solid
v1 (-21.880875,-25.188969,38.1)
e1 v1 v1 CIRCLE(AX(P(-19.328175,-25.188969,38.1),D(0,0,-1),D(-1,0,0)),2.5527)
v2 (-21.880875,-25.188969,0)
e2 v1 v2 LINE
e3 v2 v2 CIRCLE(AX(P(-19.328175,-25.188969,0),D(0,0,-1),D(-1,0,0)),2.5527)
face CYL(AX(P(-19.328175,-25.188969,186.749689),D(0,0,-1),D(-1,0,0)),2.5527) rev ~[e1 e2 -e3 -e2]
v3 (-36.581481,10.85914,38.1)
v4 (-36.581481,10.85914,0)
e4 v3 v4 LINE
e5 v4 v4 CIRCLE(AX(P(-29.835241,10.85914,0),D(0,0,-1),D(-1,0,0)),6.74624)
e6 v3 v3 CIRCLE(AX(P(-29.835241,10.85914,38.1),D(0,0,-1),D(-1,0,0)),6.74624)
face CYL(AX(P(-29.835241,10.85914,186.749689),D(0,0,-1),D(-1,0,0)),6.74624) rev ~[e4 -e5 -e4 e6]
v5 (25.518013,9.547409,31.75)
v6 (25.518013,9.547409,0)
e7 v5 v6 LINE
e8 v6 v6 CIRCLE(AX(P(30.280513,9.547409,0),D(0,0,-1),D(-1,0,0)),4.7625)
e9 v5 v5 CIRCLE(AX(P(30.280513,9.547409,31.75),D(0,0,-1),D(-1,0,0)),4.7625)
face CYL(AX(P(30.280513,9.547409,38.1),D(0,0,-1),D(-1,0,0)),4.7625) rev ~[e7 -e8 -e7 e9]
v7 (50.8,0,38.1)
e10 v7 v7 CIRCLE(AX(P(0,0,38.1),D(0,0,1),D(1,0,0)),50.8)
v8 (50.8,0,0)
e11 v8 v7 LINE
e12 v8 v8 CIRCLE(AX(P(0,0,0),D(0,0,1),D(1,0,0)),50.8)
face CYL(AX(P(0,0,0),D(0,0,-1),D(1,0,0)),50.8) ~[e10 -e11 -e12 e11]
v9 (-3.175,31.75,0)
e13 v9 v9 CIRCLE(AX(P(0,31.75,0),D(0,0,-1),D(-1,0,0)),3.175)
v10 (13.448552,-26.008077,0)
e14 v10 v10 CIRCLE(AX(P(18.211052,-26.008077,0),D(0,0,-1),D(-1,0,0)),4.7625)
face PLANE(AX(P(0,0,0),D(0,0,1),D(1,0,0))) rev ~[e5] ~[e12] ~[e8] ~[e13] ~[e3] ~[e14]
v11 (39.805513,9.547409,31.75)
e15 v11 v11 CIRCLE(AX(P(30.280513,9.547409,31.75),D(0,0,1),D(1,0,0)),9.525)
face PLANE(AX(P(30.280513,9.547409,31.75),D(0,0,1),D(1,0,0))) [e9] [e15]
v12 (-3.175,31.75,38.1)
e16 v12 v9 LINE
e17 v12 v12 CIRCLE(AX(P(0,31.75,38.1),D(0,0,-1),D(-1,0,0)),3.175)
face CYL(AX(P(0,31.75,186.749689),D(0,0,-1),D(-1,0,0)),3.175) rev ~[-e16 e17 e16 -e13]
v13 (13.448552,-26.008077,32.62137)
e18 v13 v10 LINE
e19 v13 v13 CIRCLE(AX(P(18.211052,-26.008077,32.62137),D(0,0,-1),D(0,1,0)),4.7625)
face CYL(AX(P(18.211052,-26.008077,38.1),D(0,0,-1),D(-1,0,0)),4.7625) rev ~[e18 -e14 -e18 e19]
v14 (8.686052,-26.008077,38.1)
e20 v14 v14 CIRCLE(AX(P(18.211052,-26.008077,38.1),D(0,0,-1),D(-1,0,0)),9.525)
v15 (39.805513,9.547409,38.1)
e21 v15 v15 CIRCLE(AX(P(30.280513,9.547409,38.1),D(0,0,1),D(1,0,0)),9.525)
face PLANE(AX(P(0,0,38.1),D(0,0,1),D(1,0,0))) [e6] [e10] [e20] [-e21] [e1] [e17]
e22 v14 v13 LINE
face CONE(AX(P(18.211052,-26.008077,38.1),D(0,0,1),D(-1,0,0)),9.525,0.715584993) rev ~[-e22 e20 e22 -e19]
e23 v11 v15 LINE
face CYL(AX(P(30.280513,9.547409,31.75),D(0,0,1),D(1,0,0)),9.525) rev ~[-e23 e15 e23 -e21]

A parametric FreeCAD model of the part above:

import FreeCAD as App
import Part
import Sketcher
from FreeCAD import Vector
Q = App.Units.Quantity

doc = App.newDocument("Part")
body = doc.addObject("PartDesign::Body", "Body")

# Sketch on XY plane
sketch1 = doc.addObject("Sketcher::SketchObject", "Sketch")
body.addObject(sketch1)
sketch1.AttachmentSupport = (doc.XY_Plane, [""])
sketch1.MapMode = "FlatFace"
sketch1.addGeometry(Part.Circle(Vector(0, 0, 0), Vector(0, 0, 1), 50.8), False)
sketch1.addConstraint([
    Sketcher.Constraint("Coincident", 0, 3, -1, 1),
    Sketcher.Constraint("Diameter", 0, Q("4 in")),
])
pad1 = doc.addObject("PartDesign::Pad", "Pad")
body.addObject(pad1)
pad1.Profile = sketch1
pad1.Length = Q("1.5 in")

# Sketch on XY plane
sketch2 = doc.addObject("Sketcher::SketchObject", "Sketch001")
body.addObject(sketch2)
sketch2.AttachmentSupport = (doc.XY_Plane, [""])
sketch2.MapMode = "FlatFace"
sketch2.AttachmentOffset = App.Placement(Vector(0, 0, 1.5 * 25.4), App.Rotation())
sketch2.addGeometry(Part.Circle(Vector(0, 31.75, 0), Vector(0, 0, 1), 3.175), False)
sketch2.addConstraint([
    Sketcher.Constraint("PointOnObject", 0, 3, -2),
    Sketcher.Constraint("Diameter", 0, Q("0.25 in")),
    Sketcher.Constraint("DistanceY", -1, 1, 0, 3, Q("1.25 in")),
])
doc.recompute()
hole = doc.addObject("PartDesign::Hole", "Hole")
body.addObject(hole)
hole.Profile = sketch2
hole.ThreadType = "None"
hole.Diameter = Q("0.25 in")
hole.DepthType = "ThroughAll"

# Sketch on XY plane
sketch3 = doc.addObject("Sketcher::SketchObject", "Sketch002")
body.addObject(sketch3)
sketch3.AttachmentSupport = (doc.XY_Plane, [""])
sketch3.MapMode = "FlatFace"
sketch3.AttachmentOffset = App.Placement(Vector(0, 0, 1.5 * 25.4), App.Rotation())
sketch3.addGeometry(Part.Circle(Vector(30.280513, 9.547409, 0), Vector(0, 0, 1), 4.7625), False)
sketch3.addConstraint([
    Sketcher.Constraint("Diameter", 0, Q("0.375 in")),
    Sketcher.Constraint("DistanceY", -1, 1, 0, 3, 9.547409),
    Sketcher.Constraint("DistanceX", -1, 1, 0, 3, 30.280513),
])
doc.recompute()
hole2 = doc.addObject("PartDesign::Hole", "Hole001")
body.addObject(hole2)
hole2.Profile = sketch3
hole2.ThreadType = "None"
hole2.Diameter = Q("0.375 in")
hole2.DepthType = "ThroughAll"
hole2.HoleCutType = "Counterbore"
hole2.HoleCutDiameter = Q("0.75 in")
hole2.HoleCutDepth = Q("0.25 in")

# Sketch on XY plane
sketch4 = doc.addObject("Sketcher::SketchObject", "Sketch003")
body.addObject(sketch4)
sketch4.AttachmentSupport = (doc.XY_Plane, [""])
sketch4.MapMode = "FlatFace"
sketch4.AttachmentOffset = App.Placement(Vector(0, 0, 1.5 * 25.4), App.Rotation())
sketch4.addGeometry(Part.Circle(Vector(18.211052, -26.008077, 0), Vector(0, 0, 1), 4.7625), False)
sketch4.addConstraint([
    Sketcher.Constraint("Diameter", 0, Q("0.375 in")),
    Sketcher.Constraint("DistanceX", -1, 1, 0, 3, 18.211052),
    Sketcher.Constraint("DistanceY", 0, 3, -1, 1, 26.008077),
])
doc.recompute()
hole3 = doc.addObject("PartDesign::Hole", "Hole002")
body.addObject(hole3)
hole3.Profile = sketch4
hole3.ThreadType = "None"
hole3.Diameter = Q("0.375 in")
hole3.DepthType = "ThroughAll"
hole3.HoleCutType = "Countersink"
hole3.HoleCutDiameter = Q("0.75 in")
hole3.HoleCutCountersinkAngle = 82

# Sketch on XY plane
sketch5 = doc.addObject("Sketcher::SketchObject", "Sketch004")
body.addObject(sketch5)
sketch5.AttachmentSupport = (doc.XY_Plane, [""])
sketch5.MapMode = "FlatFace"
sketch5.AttachmentOffset = App.Placement(Vector(0, 0, 1.5 * 25.4), App.Rotation())
sketch5.addGeometry(Part.Circle(Vector(-19.328175, -25.188969, 0), Vector(0, 0, 1), 2.5527), False)
sketch5.addConstraint([
    Sketcher.Constraint("Diameter", 0, Q("0.201 in")),
    Sketcher.Constraint("DistanceY", 0, 3, -1, 1, 25.188969),
    Sketcher.Constraint("DistanceX", 0, 3, -1, 1, 19.328175),
])
doc.recompute()
hole4 = doc.addObject("PartDesign::Hole", "Hole003")
body.addObject(hole4)
hole4.Profile = sketch5
hole4.ThreadType = "None"
hole4.Diameter = Q("0.201 in")
hole4.DepthType = "ThroughAll"

# Sketch on XY plane
sketch6 = doc.addObject("Sketcher::SketchObject", "Sketch005")
body.addObject(sketch6)
sketch6.AttachmentSupport = (doc.XY_Plane, [""])
sketch6.MapMode = "FlatFace"
sketch6.AttachmentOffset = App.Placement(Vector(0, 0, 1.5 * 25.4), App.Rotation())
sketch6.addGeometry(Part.Circle(Vector(-29.835241, 10.85914, 0), Vector(0, 0, 1), 6.74624), False)
sketch6.addConstraint([
    Sketcher.Constraint("Diameter", 0, Q("0.5312 in")),
    Sketcher.Constraint("DistanceX", 0, 3, -1, 1, 29.835241),
    Sketcher.Constraint("DistanceY", -1, 1, 0, 3, 10.85914),
])
doc.recompute()
hole5 = doc.addObject("PartDesign::Hole", "Hole004")
body.addObject(hole5)
hole5.Profile = sketch6
hole5.ThreadType = "None"
hole5.Diameter = Q("0.5312 in")
hole5.DepthType = "ThroughAll"

doc.recompute()
